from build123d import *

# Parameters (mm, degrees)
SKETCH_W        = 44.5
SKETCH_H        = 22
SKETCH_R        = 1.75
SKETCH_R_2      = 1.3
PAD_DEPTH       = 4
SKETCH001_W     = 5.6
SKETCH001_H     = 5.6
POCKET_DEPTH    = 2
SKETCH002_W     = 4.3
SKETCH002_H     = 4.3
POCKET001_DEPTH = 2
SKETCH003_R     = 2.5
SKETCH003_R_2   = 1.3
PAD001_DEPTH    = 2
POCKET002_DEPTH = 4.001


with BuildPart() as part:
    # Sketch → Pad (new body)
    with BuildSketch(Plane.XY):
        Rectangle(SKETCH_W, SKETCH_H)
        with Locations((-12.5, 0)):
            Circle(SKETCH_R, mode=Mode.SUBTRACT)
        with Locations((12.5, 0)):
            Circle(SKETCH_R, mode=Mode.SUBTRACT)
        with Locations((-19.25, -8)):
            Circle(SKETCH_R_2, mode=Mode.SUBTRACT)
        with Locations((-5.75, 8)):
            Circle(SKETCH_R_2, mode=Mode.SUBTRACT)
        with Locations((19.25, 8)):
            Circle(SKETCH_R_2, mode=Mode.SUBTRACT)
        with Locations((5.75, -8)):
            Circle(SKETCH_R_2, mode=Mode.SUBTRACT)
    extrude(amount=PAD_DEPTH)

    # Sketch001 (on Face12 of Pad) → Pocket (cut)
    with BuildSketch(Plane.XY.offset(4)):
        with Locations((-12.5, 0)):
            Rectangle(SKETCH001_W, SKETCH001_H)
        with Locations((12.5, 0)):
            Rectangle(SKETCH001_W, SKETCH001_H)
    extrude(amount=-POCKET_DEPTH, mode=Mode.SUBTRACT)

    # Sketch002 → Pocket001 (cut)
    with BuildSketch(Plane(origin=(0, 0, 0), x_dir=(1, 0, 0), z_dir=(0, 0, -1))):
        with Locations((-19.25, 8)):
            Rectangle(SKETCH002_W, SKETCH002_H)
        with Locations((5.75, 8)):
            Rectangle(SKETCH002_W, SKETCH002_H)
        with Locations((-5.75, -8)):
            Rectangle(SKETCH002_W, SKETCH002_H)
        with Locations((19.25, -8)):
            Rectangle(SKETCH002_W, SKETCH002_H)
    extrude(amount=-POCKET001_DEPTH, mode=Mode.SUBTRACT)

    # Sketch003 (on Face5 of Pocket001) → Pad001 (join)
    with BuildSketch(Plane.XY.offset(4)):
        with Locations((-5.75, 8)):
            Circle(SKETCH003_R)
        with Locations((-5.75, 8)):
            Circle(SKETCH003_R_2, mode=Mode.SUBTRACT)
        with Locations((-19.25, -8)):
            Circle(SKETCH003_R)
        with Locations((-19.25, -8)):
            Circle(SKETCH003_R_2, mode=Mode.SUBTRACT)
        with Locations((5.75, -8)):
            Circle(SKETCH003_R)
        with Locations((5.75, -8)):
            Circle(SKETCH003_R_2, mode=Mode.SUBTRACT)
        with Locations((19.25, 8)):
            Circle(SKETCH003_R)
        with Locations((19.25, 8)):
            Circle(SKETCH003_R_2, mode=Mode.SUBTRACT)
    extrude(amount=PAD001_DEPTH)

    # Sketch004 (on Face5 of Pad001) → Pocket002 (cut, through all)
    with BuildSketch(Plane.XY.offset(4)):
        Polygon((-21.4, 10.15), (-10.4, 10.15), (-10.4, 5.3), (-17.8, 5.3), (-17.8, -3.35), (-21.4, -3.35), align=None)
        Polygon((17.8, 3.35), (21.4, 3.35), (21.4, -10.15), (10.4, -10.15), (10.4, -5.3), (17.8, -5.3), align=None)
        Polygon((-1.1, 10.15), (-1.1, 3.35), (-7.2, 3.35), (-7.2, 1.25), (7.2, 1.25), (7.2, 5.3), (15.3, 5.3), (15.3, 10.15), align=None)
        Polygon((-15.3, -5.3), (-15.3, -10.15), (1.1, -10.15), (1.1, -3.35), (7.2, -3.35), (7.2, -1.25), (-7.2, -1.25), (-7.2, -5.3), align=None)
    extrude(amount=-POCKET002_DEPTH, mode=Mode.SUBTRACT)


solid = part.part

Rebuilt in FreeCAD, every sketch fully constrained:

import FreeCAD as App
import Part
import Sketcher

V = App.Vector
Q = App.Units.Quantity


def add_polygon(sketch, points):
    """Adds a closed chain of lines whose ends are joined by coincident constraints."""
    first, n = sketch.GeometryCount, len(points)
    for a, b in zip(points, points[1:] + points[:1]):
        sketch.addGeometry(Part.LineSegment(App.Vector(*a, 0), App.Vector(*b, 0)), False)
    for i in range(n):
        sketch.addConstraint(Sketcher.Constraint("Coincident", first + i, 2, first + (i + 1) % n, 1))

doc = App.newDocument("Part")
body = doc.addObject("PartDesign::Body", "Body")

# Sketch on XY plane
sketch1 = doc.addObject("Sketcher::SketchObject", "Sketch")
body.addObject(sketch1)
sketch1.AttachmentSupport = (doc.XY_Plane, [""])
sketch1.MapMode = "FlatFace"
add_polygon(sketch1, [(-22.2, 11), (-22.2, -11), (22.2, -11), (22.2, 11)])  # lines 0-3
sketch1.addGeometry(Part.Circle(V(-19.2, -8, 0), V(0, 0, 1), 1.3), False)  # 4
sketch1.addGeometry(Part.Circle(V(5.8, -8, 0), V(0, 0, 1), 1.3), False)  # 5
sketch1.addGeometry(Part.Circle(V(-12.5, 0, 0), V(0, 0, 1), 1.8), False)  # 6
sketch1.addGeometry(Part.Circle(V(-5.8, 8, 0), V(0, 0, 1), 1.3), False)  # 7
sketch1.addGeometry(Part.Circle(V(12.5, 0, 0), V(0, 0, 1), 1.8), False)  # 8
sketch1.addGeometry(Part.Circle(V(19.2, 8, 0), V(0, 0, 1), 1.3), False)  # 9
sketch1.addConstraint([
    Sketcher.Constraint("Vertical", 0),
    Sketcher.Constraint("Horizontal", 1),
    Sketcher.Constraint("Vertical", 2),
    Sketcher.Constraint("Horizontal", 3),
    Sketcher.Constraint("Equal", 4, 5),
    Sketcher.Constraint("Equal", 5, 7),
    Sketcher.Constraint("Equal", 6, 8),
    Sketcher.Constraint("Equal", 7, 9),
    Sketcher.Constraint("Symmetric", 5, 3, 7, 3, -1, 1),
    Sketcher.Constraint("Symmetric", 6, 3, 8, 3, -1, 1),
    Sketcher.Constraint("Symmetric", 4, 3, 9, 3, -1, 1),
    Sketcher.Constraint("Symmetric", 0, 2, 2, 2, -1, 1),
    Sketcher.Constraint("PointOnObject", 6, 3, -1),
    Sketcher.Constraint("Horizontal", 4, 3, 5, 3),
    Sketcher.Constraint("Diameter", 4, Q("2.6 mm")),
    Sketcher.Constraint("Diameter", 6, Q("3.5 mm")),
    Sketcher.Constraint("DistanceY", 0, 2, 0, 1, Q("22 mm")),
    Sketcher.Constraint("DistanceX", 1, 1, 1, 2, Q("44.5 mm")),
    Sketcher.Constraint("DistanceY", 4, 3, -1, 1, Q("8 mm")),
    Sketcher.Constraint("DistanceX", 4, 3, 5, 3, Q("25 mm")),
    Sketcher.Constraint("DistanceX", 6, 3, 8, 3, Q("25 mm")),
    Sketcher.Constraint("DistanceX", 0, 2, 4, 3, Q("3 mm")),
])
pad1 = doc.addObject("PartDesign::Pad", "Pad")
body.addObject(pad1)
pad1.Profile = sketch1
pad1.Length = 4

# Sketch on XY plane
sketch2 = doc.addObject("Sketcher::SketchObject", "Sketch001")
body.addObject(sketch2)
sketch2.AttachmentSupport = (doc.XY_Plane, [""])
sketch2.MapMode = "FlatFace"
sketch2.AttachmentOffset = App.Placement(V(0, 0, 4), App.Rotation())
add_polygon(sketch2, [(-15, 3), (-15, -3), (-10, -3), (-10, 3)])  # lines 0-3
add_polygon(sketch2, [(10, 3), (10, -3), (15, -3), (15, 3)])  # lines 4-7
sketch2.addConstraint([
    Sketcher.Constraint("Vertical", 0),
    Sketcher.Constraint("Horizontal", 1),
    Sketcher.Constraint("Vertical", 2),
    Sketcher.Constraint("Horizontal", 3),
    Sketcher.Constraint("Vertical", 4),
    Sketcher.Constraint("Horizontal", 5),
    Sketcher.Constraint("Vertical", 6),
    Sketcher.Constraint("Horizontal", 7),
    Sketcher.Constraint("Symmetric", 2, 2, 4, 2, -1, 1),
    Sketcher.Constraint("Symmetric", 0, 2, 6, 2, -1, 1),
    Sketcher.Constraint("Horizontal", 1, 2, 4, 2),
    Sketcher.Constraint("Equal", 7, 0),
    Sketcher.Constraint("DistanceX", 1, 1, 1, 2, Q("5.6 mm")),
    Sketcher.Constraint("DistanceX", 0, 2, 4, 2, Q("25 mm")),
])
pocket1 = doc.addObject("PartDesign::Pocket", "Pocket")
body.addObject(pocket1)
pocket1.Profile = sketch2
pocket1.Length = 2

# Sketch on XY plane
sketch3 = doc.addObject("Sketcher::SketchObject", "Sketch002")
body.addObject(sketch3)
sketch3.AttachmentSupport = (doc.XY_Plane, [""])
sketch3.MapMode = "FlatFace"
add_polygon(sketch3, [(-21.4, -10.2), (-21.4, -5.8), (-17.1, -5.8), (-17.1, -10.2)])  # lines 0-3
add_polygon(sketch3, [(3.6, -10.2), (3.6, -5.8), (7.9, -5.8), (7.9, -10.2)])  # lines 4-7
add_polygon(sketch3, [(-7.9, 5.8), (-7.9, 10.2), (-3.6, 10.2), (-3.6, 5.8)])  # lines 8-11
add_polygon(sketch3, [(17.1, 5.8), (17.1, 10.2), (21.4, 10.2), (21.4, 5.8)])  # lines 12-15
sketch3.addConstraint([
    Sketcher.Constraint("Vertical", 0),
    Sketcher.Constraint("Horizontal", 1),
    Sketcher.Constraint("Vertical", 2),
    Sketcher.Constraint("Horizontal", 3),
    Sketcher.Constraint("Vertical", 4),
    Sketcher.Constraint("Horizontal", 5),
    Sketcher.Constraint("Vertical", 6),
    Sketcher.Constraint("Horizontal", 7),
    Sketcher.Constraint("Vertical", 8),
    Sketcher.Constraint("Horizontal", 9),
    Sketcher.Constraint("Vertical", 10),
    Sketcher.Constraint("Horizontal", 11),
    Sketcher.Constraint("Vertical", 12),
    Sketcher.Constraint("Horizontal", 13),
    Sketcher.Constraint("Vertical", 14),
    Sketcher.Constraint("Horizontal", 15),
    Sketcher.Constraint("Symmetric", 6, 2, 8, 2, -1, 1),
    Sketcher.Constraint("Symmetric", 4, 2, 10, 2, -1, 1),
    Sketcher.Constraint("Symmetric", 2, 2, 12, 2, -1, 1),
    Sketcher.Constraint("Symmetric", 0, 2, 14, 2, -1, 1),
    Sketcher.Constraint("Horizontal", 1, 2, 4, 2),
    Sketcher.Constraint("Horizontal", 3, 2, 6, 2),
    Sketcher.Constraint("Equal", 3, 5),
    Sketcher.Constraint("Equal", 15, 0),
    Sketcher.Constraint("DistanceX", 1, 1, 1, 2, Q("4.3 mm")),
    Sketcher.Constraint("DistanceX", 0, 2, 4, 2, Q("25 mm")),
    Sketcher.Constraint("DistanceY", 1, 2, 8, 2, Q("16 mm")),
    Sketcher.Constraint("DistanceX", 0, 2, -1, 1, Q("21.4 mm")),
])
pocket2 = doc.addObject("PartDesign::Pocket", "Pocket001")
body.addObject(pocket2)
pocket2.Profile = sketch3
pocket2.Length = 2
pocket2.Reversed = True

# Sketch on XY plane
sketch4 = doc.addObject("Sketcher::SketchObject", "Sketch003")
body.addObject(sketch4)
sketch4.AttachmentSupport = (doc.XY_Plane, [""])
sketch4.MapMode = "FlatFace"
sketch4.AttachmentOffset = App.Placement(V(0, 0, 4), App.Rotation())
sketch4.addGeometry([
    Part.Circle(V(-5.8, 8, 0), V(0, 0, 1), 2.5),  # 0
    Part.Circle(V(-5.8, 8, 0), V(0, 0, 1), 1.3),  # 1
    Part.Circle(V(-19.2, -8, 0), V(0, 0, 1), 2.5),  # 2
    Part.Circle(V(-19.2, -8, 0), V(0, 0, 1), 1.3),  # 3
    Part.Circle(V(5.8, -8, 0), V(0, 0, 1), 2.5),  # 4
    Part.Circle(V(5.8, -8, 0), V(0, 0, 1), 1.3),  # 5
    Part.Circle(V(19.2, 8, 0), V(0, 0, 1), 2.5),  # 6
    Part.Circle(V(19.2, 8, 0), V(0, 0, 1), 1.3),  # 7
], False)
sketch4.addConstraint([
    Sketcher.Constraint("Coincident", 1, 3, 0, 3),
    Sketcher.Constraint("Coincident", 3, 3, 2, 3),
    Sketcher.Constraint("Coincident", 5, 3, 4, 3),
    Sketcher.Constraint("Coincident", 7, 3, 6, 3),
    Sketcher.Constraint("Equal", 0, 2),
    Sketcher.Constraint("Equal", 1, 3),
    Sketcher.Constraint("Equal", 2, 4),
    Sketcher.Constraint("Equal", 3, 5),
    Sketcher.Constraint("Equal", 4, 6),
    Sketcher.Constraint("Equal", 5, 7),
    Sketcher.Constraint("Symmetric", 0, 3, 4, 3, -1, 1),
    Sketcher.Constraint("Symmetric", 2, 3, 6, 3, -1, 1),
    Sketcher.Constraint("Horizontal", 3, 3, 4, 3),
    Sketcher.Constraint("Diameter", 0, Q("5 mm")),
    Sketcher.Constraint("Diameter", 1, Q("2.6 mm")),
    Sketcher.Constraint("DistanceY", -1, 1, 0, 3, Q("8 mm")),
    Sketcher.Constraint("DistanceX", 2, 3, 4, 3, Q("25 mm")),
    Sketcher.Constraint("DistanceX", 2, 3, 0, 3, Q("13.5 mm")),
])
pad2 = doc.addObject("PartDesign::Pad", "Pad001")
body.addObject(pad2)
pad2.Profile = sketch4
pad2.Length = 2

# Sketch on XY plane
sketch5 = doc.addObject("Sketcher::SketchObject", "Sketch004")
body.addObject(sketch5)
sketch5.AttachmentSupport = (doc.XY_Plane, [""])
sketch5.MapMode = "FlatFace"
sketch5.AttachmentOffset = App.Placement(V(0, 0, 4), App.Rotation())
add_polygon(sketch5, [(-10.4, 10.2), (-21.4, 10.2), (-21.4, -3.4), (-17.8, -3.4), (-17.8, 5.3), (-10.4, 5.3)])  # lines 0-5
add_polygon(sketch5, [(21.4, 3.4), (17.8, 3.4), (17.8, -5.3), (10.4, -5.3), (10.4, -10.2), (21.4, -10.2)])  # lines 6-11
add_polygon(sketch5, [(-1.1, 10.2), (-1.1, 3.4), (-7.2, 3.4), (-7.2, 1.2), (7.2, 1.2), (7.2, 5.3), (15.3, 5.3), (15.3, 10.2)])  # lines 12-19
add_polygon(sketch5, [(-15.3, -5.3), (-15.3, -10.2), (1.1, -10.2), (1.1, -3.4), (7.2, -3.4), (7.2, -1.2), (-7.2, -1.2), (-7.2, -5.3)])  # lines 20-27
sketch5.addConstraint([
    Sketcher.Constraint("Horizontal", 0),
    Sketcher.Constraint("Vertical", 1),
    Sketcher.Constraint("Horizontal", 2),
    Sketcher.Constraint("Vertical", 3),
    Sketcher.Constraint("Horizontal", 4),
    Sketcher.Constraint("Vertical", 5),
    Sketcher.Constraint("Horizontal", 6),
    Sketcher.Constraint("Vertical", 7),
    Sketcher.Constraint("Horizontal", 8),
    Sketcher.Constraint("Vertical", 9),
    Sketcher.Constraint("Horizontal", 10),
    Sketcher.Constraint("Vertical", 11),
    Sketcher.Constraint("Vertical", 12),
    Sketcher.Constraint("Horizontal", 13),
    Sketcher.Constraint("Vertical", 14),
    Sketcher.Constraint("Horizontal", 15),
    Sketcher.Constraint("Vertical", 16),
    Sketcher.Constraint("Horizontal", 17),
    Sketcher.Constraint("Vertical", 18),
    Sketcher.Constraint("Horizontal", 19),
    Sketcher.Constraint("Vertical", 20),
    Sketcher.Constraint("Horizontal", 21),
    Sketcher.Constraint("Vertical", 22),
    Sketcher.Constraint("Horizontal", 23),
    Sketcher.Constraint("Vertical", 24),
    Sketcher.Constraint("Horizontal", 25),
    Sketcher.Constraint("Vertical", 26),
    Sketcher.Constraint("Horizontal", 27),
    Sketcher.Constraint("Symmetric", 2, 2, 6, 2, -1, 1),
    Sketcher.Constraint("Symmetric", 4, 2, 8, 2, -1, 1),
    Sketcher.Constraint("Symmetric", 0, 2, 10, 2, -1, 1),
    Sketcher.Constraint("Symmetric", 18, 2, 20, 2, -1, 1),
    Sketcher.Constraint("Symmetric", 12, 2, 22, 2, -1, 1),
    Sketcher.Constraint("Symmetric", 14, 2, 24, 2, -1, 1),
    Sketcher.Constraint("Symmetric", 16, 2, 26, 2, -1, 1),
    Sketcher.Constraint("Horizontal", 11, 2, 12, 2),
    Sketcher.Constraint("Horizontal", 4, 2, 16, 2),
    Sketcher.Constraint("Horizontal", 5, 2, 18, 2),
    Sketcher.Constraint("Vertical", 16, 2, 23, 2),
    Sketcher.Constraint("DistanceX", 0, 2, 0, 1, Q("11 mm")),
    Sketcher.Constraint("DistanceX", 2, 1, 2, 2, Q("3.6 mm")),
    Sketcher.Constraint("DistanceX", 13, 2, 13, 1, Q("6.1 mm")),
    Sketcher.Constraint("DistanceX", 15, 1, 15, 2, Q("14.4 mm")),
    Sketcher.Constraint("DistanceX", 17, 1, 17, 2, Q("8.1 mm")),
    Sketcher.Constraint("DistanceY", 1, 2, 1, 1, Q("13.5 mm")),
    Sketcher.Constraint("DistanceY", 12, 2, 12, 1, Q("6.8 mm")),
    Sketcher.Constraint("DistanceY", 14, 2, 14, 1, Q("2.1 mm")),
    Sketcher.Constraint("DistanceY", 3, 1, 3, 2, Q("8.65 mm")),
    Sketcher.Constraint("DistanceX", 0, 2, -1, 1, Q("21.4 mm")),
])
pocket3 = doc.addObject("PartDesign::Pocket", "Pocket002")
body.addObject(pocket3)
pocket3.Profile = sketch5
pocket3.Type = "ThroughAll"

doc.recompute()
